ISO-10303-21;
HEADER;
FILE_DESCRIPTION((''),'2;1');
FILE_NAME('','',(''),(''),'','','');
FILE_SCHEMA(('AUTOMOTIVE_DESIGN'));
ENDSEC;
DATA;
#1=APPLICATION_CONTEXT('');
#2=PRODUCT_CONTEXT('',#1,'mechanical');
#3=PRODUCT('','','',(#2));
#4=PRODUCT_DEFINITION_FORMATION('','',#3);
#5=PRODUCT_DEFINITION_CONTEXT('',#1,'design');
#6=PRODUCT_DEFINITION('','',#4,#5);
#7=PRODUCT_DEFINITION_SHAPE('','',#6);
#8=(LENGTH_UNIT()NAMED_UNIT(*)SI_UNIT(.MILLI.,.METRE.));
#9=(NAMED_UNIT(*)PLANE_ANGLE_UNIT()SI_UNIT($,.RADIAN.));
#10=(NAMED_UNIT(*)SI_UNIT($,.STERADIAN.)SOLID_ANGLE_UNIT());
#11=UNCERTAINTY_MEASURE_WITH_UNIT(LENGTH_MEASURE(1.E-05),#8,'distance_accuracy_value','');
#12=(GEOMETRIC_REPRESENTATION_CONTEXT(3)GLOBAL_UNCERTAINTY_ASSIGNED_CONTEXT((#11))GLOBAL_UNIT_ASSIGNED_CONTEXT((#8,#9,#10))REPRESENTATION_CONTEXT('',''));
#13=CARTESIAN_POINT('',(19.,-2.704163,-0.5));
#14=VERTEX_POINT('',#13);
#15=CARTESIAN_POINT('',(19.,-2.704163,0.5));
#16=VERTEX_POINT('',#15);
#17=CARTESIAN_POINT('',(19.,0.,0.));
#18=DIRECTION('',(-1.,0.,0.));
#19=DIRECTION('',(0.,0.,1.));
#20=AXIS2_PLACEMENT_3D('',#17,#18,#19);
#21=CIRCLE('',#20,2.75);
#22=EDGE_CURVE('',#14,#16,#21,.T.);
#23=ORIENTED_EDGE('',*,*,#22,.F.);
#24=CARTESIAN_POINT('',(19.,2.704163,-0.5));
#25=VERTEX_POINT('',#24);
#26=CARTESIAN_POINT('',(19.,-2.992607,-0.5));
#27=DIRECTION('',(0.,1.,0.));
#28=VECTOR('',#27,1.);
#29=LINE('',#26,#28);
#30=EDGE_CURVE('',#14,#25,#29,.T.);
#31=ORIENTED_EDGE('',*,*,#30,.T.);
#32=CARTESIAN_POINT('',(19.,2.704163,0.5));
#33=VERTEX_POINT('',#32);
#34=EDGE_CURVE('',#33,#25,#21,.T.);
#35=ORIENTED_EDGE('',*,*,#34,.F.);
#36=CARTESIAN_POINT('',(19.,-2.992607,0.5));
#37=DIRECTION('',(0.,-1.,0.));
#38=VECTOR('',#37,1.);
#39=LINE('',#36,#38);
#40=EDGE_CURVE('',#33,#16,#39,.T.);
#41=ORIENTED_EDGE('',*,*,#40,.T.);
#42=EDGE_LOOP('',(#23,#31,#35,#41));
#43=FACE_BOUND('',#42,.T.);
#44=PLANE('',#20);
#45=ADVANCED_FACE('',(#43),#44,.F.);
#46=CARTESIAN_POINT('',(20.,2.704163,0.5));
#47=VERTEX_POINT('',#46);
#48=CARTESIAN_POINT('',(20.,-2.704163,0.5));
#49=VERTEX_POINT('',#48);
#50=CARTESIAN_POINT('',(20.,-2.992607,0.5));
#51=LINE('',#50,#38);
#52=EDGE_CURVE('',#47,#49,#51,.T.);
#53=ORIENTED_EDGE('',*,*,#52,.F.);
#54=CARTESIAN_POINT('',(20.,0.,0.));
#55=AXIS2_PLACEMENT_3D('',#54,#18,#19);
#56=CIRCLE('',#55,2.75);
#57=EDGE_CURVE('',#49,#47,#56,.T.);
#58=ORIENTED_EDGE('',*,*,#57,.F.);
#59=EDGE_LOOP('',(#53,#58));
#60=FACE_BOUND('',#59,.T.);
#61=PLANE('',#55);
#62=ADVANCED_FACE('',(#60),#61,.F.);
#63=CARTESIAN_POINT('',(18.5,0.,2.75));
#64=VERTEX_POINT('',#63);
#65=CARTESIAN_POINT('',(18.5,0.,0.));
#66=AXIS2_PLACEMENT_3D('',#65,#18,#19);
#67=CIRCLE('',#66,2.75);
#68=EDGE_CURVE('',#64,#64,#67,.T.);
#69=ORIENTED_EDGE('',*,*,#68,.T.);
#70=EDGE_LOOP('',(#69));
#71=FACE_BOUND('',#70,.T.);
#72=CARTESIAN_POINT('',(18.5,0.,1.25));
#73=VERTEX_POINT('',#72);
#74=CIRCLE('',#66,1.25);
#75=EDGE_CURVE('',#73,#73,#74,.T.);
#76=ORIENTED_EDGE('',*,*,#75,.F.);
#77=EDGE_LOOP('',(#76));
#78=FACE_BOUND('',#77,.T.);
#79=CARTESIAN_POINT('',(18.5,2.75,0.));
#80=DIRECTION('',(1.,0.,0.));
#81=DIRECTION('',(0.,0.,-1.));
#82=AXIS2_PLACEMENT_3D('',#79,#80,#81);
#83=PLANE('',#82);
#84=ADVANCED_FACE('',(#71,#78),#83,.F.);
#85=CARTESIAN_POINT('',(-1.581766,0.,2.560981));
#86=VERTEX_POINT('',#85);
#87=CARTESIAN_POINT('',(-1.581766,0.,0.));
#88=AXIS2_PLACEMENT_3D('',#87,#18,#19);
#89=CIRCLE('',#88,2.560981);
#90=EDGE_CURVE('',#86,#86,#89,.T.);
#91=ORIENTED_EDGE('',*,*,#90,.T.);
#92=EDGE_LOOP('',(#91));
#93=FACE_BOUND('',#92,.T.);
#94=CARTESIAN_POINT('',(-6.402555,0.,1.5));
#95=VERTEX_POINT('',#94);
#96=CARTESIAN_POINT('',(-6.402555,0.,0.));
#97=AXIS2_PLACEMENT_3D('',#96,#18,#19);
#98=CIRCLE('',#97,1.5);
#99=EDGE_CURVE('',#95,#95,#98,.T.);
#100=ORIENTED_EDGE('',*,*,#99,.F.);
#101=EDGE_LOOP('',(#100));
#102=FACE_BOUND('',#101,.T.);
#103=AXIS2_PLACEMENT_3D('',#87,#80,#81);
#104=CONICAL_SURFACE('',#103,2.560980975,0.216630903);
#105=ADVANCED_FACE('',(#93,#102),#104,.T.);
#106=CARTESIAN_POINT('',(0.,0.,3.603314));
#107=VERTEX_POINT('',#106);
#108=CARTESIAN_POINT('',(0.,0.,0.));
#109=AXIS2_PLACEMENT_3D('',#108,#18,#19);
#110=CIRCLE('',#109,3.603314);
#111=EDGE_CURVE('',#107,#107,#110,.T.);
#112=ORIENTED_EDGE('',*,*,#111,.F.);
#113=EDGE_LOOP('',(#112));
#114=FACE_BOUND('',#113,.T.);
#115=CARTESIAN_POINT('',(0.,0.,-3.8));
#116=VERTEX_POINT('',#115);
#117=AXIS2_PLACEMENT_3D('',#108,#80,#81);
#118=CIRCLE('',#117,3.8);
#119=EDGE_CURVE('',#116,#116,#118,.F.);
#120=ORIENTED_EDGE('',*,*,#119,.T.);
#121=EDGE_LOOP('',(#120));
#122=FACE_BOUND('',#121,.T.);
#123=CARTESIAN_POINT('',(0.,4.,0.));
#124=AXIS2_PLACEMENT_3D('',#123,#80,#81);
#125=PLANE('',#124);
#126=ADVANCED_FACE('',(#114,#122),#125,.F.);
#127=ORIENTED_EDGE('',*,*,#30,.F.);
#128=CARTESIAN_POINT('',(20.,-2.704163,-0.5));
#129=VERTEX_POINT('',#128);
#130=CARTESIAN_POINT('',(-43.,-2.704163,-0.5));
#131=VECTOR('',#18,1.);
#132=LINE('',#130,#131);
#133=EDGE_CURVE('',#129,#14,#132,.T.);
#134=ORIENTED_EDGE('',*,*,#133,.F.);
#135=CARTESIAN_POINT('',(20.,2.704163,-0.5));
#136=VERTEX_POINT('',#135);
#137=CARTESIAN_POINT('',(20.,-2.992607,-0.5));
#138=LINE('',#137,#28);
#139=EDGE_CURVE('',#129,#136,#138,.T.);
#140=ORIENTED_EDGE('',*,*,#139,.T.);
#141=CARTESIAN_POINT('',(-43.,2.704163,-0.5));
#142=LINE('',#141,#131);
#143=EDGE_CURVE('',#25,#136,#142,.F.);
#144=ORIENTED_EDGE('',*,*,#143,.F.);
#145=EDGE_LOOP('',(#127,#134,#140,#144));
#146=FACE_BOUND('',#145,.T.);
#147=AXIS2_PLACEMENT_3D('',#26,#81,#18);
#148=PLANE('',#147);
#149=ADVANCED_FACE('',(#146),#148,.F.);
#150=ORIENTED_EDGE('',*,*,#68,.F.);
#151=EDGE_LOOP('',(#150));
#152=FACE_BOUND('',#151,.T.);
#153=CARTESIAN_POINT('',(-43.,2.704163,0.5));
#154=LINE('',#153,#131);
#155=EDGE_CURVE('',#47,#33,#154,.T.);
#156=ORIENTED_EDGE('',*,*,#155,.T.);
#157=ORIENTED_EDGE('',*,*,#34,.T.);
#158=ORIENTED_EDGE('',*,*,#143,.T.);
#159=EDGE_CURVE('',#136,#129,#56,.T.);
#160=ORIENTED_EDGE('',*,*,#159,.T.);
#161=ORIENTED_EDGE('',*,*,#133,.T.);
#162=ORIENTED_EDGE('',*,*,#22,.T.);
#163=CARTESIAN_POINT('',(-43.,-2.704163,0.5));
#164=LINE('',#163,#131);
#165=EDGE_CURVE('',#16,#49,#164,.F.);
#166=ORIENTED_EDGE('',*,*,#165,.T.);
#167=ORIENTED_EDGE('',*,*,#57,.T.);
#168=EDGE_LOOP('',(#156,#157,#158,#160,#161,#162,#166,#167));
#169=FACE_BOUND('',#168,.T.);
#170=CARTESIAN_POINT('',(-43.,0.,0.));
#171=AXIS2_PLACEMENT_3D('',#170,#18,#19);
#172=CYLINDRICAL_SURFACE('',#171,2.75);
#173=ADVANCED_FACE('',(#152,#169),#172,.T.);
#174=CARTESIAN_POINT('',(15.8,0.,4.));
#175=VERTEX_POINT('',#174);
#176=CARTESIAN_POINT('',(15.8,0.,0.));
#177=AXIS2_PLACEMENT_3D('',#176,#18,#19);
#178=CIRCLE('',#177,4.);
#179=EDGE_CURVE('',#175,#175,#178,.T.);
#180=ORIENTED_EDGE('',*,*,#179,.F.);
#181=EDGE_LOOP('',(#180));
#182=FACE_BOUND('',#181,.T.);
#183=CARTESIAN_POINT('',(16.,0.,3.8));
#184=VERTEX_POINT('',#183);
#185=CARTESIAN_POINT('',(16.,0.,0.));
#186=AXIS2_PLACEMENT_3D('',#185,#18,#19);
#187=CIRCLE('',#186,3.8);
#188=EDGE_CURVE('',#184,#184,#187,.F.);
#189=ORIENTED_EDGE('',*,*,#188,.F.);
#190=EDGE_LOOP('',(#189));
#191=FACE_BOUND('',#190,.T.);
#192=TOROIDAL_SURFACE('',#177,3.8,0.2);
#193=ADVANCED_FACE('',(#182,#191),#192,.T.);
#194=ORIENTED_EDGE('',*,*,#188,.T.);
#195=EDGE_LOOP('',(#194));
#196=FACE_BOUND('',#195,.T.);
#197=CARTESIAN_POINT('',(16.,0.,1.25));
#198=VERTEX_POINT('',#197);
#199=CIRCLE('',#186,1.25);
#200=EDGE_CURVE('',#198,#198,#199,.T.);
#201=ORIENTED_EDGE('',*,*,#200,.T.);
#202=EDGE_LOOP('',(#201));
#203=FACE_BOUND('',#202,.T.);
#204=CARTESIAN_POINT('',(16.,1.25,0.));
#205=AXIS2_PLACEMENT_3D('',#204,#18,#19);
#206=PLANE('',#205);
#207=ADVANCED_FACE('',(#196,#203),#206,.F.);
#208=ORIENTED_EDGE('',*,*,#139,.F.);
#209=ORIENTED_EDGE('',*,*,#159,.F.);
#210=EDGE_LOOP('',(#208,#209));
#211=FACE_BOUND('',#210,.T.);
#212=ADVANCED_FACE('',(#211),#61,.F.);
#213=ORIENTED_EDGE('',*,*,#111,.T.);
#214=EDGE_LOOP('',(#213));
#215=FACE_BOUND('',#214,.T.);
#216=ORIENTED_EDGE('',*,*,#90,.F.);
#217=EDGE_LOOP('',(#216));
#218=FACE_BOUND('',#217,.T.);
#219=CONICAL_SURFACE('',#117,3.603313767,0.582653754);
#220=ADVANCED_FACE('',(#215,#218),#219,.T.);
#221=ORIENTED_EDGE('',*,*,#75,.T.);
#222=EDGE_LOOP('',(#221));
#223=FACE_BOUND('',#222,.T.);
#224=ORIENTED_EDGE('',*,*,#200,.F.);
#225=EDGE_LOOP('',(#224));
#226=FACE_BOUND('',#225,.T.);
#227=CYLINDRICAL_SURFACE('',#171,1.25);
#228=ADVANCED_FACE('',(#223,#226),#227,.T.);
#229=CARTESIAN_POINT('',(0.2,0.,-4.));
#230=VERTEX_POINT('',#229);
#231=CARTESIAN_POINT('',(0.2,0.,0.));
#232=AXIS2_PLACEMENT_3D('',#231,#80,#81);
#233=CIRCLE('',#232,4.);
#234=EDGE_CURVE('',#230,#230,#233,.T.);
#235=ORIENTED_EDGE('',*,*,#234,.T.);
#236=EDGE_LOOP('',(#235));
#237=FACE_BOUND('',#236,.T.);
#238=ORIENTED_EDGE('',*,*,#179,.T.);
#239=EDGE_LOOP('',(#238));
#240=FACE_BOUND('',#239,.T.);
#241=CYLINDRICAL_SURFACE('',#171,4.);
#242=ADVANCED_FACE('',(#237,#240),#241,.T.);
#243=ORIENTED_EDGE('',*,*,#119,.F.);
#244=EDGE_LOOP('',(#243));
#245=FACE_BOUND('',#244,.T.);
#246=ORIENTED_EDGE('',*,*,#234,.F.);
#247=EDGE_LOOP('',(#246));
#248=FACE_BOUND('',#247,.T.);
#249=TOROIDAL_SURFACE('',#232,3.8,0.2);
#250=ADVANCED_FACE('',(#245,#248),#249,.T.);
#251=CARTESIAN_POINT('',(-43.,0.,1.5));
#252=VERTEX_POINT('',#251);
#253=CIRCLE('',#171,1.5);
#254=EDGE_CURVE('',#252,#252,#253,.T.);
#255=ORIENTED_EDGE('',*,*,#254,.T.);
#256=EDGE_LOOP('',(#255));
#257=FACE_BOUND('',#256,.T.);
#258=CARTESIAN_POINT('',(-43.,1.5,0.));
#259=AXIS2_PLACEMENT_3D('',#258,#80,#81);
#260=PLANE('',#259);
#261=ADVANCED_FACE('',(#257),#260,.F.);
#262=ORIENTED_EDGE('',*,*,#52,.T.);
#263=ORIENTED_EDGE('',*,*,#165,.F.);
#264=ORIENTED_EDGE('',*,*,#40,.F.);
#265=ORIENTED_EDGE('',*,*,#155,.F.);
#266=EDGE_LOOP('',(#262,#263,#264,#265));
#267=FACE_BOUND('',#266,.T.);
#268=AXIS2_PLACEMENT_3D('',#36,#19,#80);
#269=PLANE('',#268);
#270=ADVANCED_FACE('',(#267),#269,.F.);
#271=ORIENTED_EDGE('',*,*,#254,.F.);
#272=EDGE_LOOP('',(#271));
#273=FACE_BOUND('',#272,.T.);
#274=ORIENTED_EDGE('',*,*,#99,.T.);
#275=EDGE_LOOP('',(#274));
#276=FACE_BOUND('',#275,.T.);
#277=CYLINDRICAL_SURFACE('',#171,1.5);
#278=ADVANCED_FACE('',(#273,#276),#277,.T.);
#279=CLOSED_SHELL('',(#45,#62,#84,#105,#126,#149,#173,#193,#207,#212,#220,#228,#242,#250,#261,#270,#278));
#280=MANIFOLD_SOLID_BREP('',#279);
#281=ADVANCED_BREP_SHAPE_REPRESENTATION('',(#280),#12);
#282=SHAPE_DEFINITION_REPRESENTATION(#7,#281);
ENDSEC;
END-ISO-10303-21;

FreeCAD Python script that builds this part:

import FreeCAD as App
import Part
import Sketcher

V = App.Vector
Q = App.Units.Quantity


def edges_at(feature, points):
    """Names of the edges that pass closest to the given points."""
    edges = feature.Shape.Edges
    near = lambda p: min(range(len(edges)), key=lambda i: edges[i].distToShape(Part.Vertex(*p))[0])
    return sorted({f"Edge{near(p) + 1}" for p in points})

doc = App.newDocument("Part")
body = doc.addObject("PartDesign::Body", "Body")

sketch1 = doc.addObject("Sketcher::SketchObject", "Sketch")
body.addObject(sketch1)
sketch1.AttachmentSupport = (doc.XY_Plane, [""])
sketch1.MapMode = "FlatFace"
sketch1.addGeometry(Part.LineSegment(V(-6.4, 1.5, 0), V(-43, 1.5, 0)), False)
sketch1.addGeometry(Part.LineSegment(V(-43, 1.5, 0), V(-43, 0, 0)), False)
sketch1.addGeometry(Part.LineSegment(V(-43, 0, 0), V(20, 0, 0)), False)
sketch1.addGeometry(Part.LineSegment(V(20, 0, 0), V(20, 2.75, 0)), False)
sketch1.addGeometry(Part.LineSegment(V(20, 2.75, 0), V(18.5, 2.75, 0)), False)
sketch1.addGeometry(Part.LineSegment(V(18.5, 2.75, 0), V(18.5, 1.25, 0)), False)
sketch1.addGeometry(Part.LineSegment(V(18.5, 1.25, 0), V(16, 1.25, 0)), False)
sketch1.addGeometry(Part.LineSegment(V(16, 1.25, 0), V(16, 4, 0)), False)
sketch1.addGeometry(Part.LineSegment(V(16, 4, 0), V(0, 4, 0)), False)
sketch1.addGeometry(Part.LineSegment(V(0, 4, 0), V(0, 3.6, 0)), False)
sketch1.addGeometry(Part.LineSegment(V(0, 3.6, 0), V(-1.58, 2.56, 0)), False)
sketch1.addGeometry(Part.LineSegment(V(-1.58, 2.56, 0), V(-6.4, 1.5, 0)), False)
sketch1.addConstraint(Sketcher.Constraint("Coincident", 0, 2, 1, 1))
sketch1.addConstraint(Sketcher.Constraint("Coincident", 1, 2, 2, 1))
sketch1.addConstraint(Sketcher.Constraint("Coincident", 2, 2, 3, 1))
sketch1.addConstraint(Sketcher.Constraint("Coincident", 3, 2, 4, 1))
sketch1.addConstraint(Sketcher.Constraint("Coincident", 4, 2, 5, 1))
sketch1.addConstraint(Sketcher.Constraint("Coincident", 5, 2, 6, 1))
sketch1.addConstraint(Sketcher.Constraint("Coincident", 6, 2, 7, 1))
sketch1.addConstraint(Sketcher.Constraint("Coincident", 7, 2, 8, 1))
sketch1.addConstraint(Sketcher.Constraint("Coincident", 8, 2, 9, 1))
sketch1.addConstraint(Sketcher.Constraint("Coincident", 9, 2, 10, 1))
sketch1.addConstraint(Sketcher.Constraint("Coincident", 10, 2, 11, 1))
sketch1.addConstraint(Sketcher.Constraint("Coincident", 11, 2, 0, 1))
sketch1.addConstraint(Sketcher.Constraint("Horizontal", 0))
sketch1.addConstraint(Sketcher.Constraint("Vertical", 1))
sketch1.addConstraint(Sketcher.Constraint("Horizontal", 2))
sketch1.addConstraint(Sketcher.Constraint("Vertical", 3))
sketch1.addConstraint(Sketcher.Constraint("Horizontal", 4))
sketch1.addConstraint(Sketcher.Constraint("Vertical", 5))
sketch1.addConstraint(Sketcher.Constraint("Horizontal", 6))
sketch1.addConstraint(Sketcher.Constraint("Vertical", 7))
sketch1.addConstraint(Sketcher.Constraint("Horizontal", 8))
sketch1.addConstraint(Sketcher.Constraint("Vertical", 9))
sketch1.addConstraint(Sketcher.Constraint("PointOnObject", 1, 2, -1))
sketch1.addConstraint(Sketcher.Constraint("PointOnObject", 8, 2, -2))
sketch1.addConstraint(Sketcher.Constraint("Equal", 4, 1))
sketch1.addConstraint(Sketcher.Constraint("Equal", 1, 5))
sketch1.addConstraint(Sketcher.Constraint("Equal", 3, 7))
sketch1.addConstraint(Sketcher.Constraint("DistanceX", 2, 1, 2, 2, Q("63 mm")))
sketch1.addConstraint(Sketcher.Constraint("DistanceX", 8, 2, 8, 1, Q("16 mm")))
sketch1.addConstraint(Sketcher.Constraint("DistanceX", 4, 2, 4, 1, Q("1.5 mm")))
sketch1.addConstraint(Sketcher.Constraint("DistanceX", 6, 2, 6, 1, Q("2.5 mm")))
sketch1.addConstraint(Sketcher.Constraint("DistanceY", -1, 1, 7, 2, Q("4 mm")))
sketch1.addConstraint(Sketcher.Constraint("Distance", 11, Q("4.936161 mm")))
sketch1.addConstraint(Sketcher.Constraint("DistanceX", 0, 2, 0, 1, Q("36.597445 mm")))
sketch1.addConstraint(Sketcher.Constraint("DistanceY", 9, 2, 9, 1, Q("0.396686 mm")))
sketch1.addConstraint(Sketcher.Constraint("DistanceY", -1, 1, 10, 2, Q("2.560981 mm")))
revolution = doc.addObject("PartDesign::Revolution", "Revolution")
body.addObject(revolution)
revolution.Profile = sketch1
revolution.ReferenceAxis = (sketch1, ["H_Axis"])
revolution.Angle = 360
doc.recompute()

fillet = doc.addObject("PartDesign::Fillet", "Fillet")
body.addObject(fillet)
fillet.Base = (revolution, edges_at(revolution, [(0, 0, -4), (16, 0, -4)]))
fillet.Radius = 0.2

sketch2 = doc.addObject("Sketcher::SketchObject", "Sketch001")
body.addObject(sketch2)
sketch2.AttachmentSupport = (doc.YZ_Plane, [""])
sketch2.MapMode = "FlatFace"
sketch2.AttachmentOffset = App.Placement(V(0, 0, 20), App.Rotation())
sketch2.addGeometry(Part.LineSegment(V(3.1, 0.5, 0), V(-3, 0.5, 0)), False)
sketch2.addGeometry(Part.LineSegment(V(-3, 0.5, 0), V(-3, -0.5, 0)), False)
sketch2.addGeometry(Part.LineSegment(V(-3, -0.5, 0), V(3.1, -0.5, 0)), False)
sketch2.addGeometry(Part.LineSegment(V(3.1, -0.5, 0), V(3.1, 0.5, 0)), False)
sketch2.addConstraint(Sketcher.Constraint("Coincident", 0, 2, 1, 1))
sketch2.addConstraint(Sketcher.Constraint("Coincident", 1, 2, 2, 1))
sketch2.addConstraint(Sketcher.Constraint("Coincident", 2, 2, 3, 1))
sketch2.addConstraint(Sketcher.Constraint("Coincident", 3, 2, 0, 1))
sketch2.addConstraint(Sketcher.Constraint("Horizontal", 0))
sketch2.addConstraint(Sketcher.Constraint("Vertical", 1))
sketch2.addConstraint(Sketcher.Constraint("Horizontal", 2))
sketch2.addConstraint(Sketcher.Constraint("Vertical", 3))
sketch2.addConstraint(Sketcher.Constraint("DistanceY", 1, 2, 1, 1, Q("1 mm")))
sketch2.addConstraint(Sketcher.Constraint("DistanceY", -1, 1, 0, 2, Q("0.5 mm")))
sketch2.addConstraint(Sketcher.Constraint("DistanceX", 0, 2, 0, 1, Q("6.101946 mm")))
sketch2.addConstraint(Sketcher.Constraint("DistanceX", -1, 1, 2, 2, Q("3.10934 mm")))
pocket1 = doc.addObject("PartDesign::Pocket", "Pocket")
body.addObject(pocket1)
pocket1.Profile = sketch2
pocket1.Length = 1

doc.recompute()
